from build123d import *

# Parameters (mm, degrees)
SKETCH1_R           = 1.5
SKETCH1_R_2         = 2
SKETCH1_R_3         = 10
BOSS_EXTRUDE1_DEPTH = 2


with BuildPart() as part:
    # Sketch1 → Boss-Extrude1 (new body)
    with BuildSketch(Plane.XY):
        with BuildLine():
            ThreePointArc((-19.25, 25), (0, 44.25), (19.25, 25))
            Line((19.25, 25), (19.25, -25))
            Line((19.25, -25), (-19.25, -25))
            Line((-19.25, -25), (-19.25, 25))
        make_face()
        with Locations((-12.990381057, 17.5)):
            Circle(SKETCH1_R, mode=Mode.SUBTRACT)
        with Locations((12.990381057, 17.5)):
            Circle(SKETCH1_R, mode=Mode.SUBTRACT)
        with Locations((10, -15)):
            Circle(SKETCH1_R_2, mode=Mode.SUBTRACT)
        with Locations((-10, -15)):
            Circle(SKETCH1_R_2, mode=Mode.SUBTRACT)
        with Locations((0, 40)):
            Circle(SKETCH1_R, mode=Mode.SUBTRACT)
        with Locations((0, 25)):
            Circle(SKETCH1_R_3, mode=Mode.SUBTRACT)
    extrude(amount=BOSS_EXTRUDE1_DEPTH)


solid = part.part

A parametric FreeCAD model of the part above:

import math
import FreeCAD as App
import Part
import Sketcher
from FreeCAD import Vector

doc = App.newDocument("Part")
body = doc.addObject("PartDesign::Body", "Body")

# Sketch on XY plane
sketch1 = body.newObject("Sketcher::SketchObject", "Sketch")
sketch1.AttachmentSupport = (doc.getObject("XY_Plane"), [""])
sketch1.MapMode = "FlatFace"
sketch1.addGeometry([
    Part.ArcOfCircle(Part.Circle(Vector(0, 25, 0), Vector(0, 0, 1), 19.25), math.radians(0), math.radians(180)),  # 0
    Part.LineSegment(Vector(-19.25, 25, 0), Vector(-19.25, -25, 0)),  # 1
    Part.LineSegment(Vector(-19.25, -25, 0), Vector(19.25, -25, 0)),  # 2
    Part.LineSegment(Vector(19.25, -25, 0), Vector(19.25, 25, 0)),  # 3
    Part.Circle(Vector(10, -15, 0), Vector(0, 0, 1), 2),  # 4
    Part.Circle(Vector(-10, -15, 0), Vector(0, 0, 1), 2),  # 5
    Part.Circle(Vector(12.990381, 17.5, 0), Vector(0, 0, 1), 1.5),  # 6
    Part.Circle(Vector(0, 25, 0), Vector(0, 0, 1), 10),  # 7
    Part.Circle(Vector(0, 40, 0), Vector(0, 0, 1), 1.5),  # 8
    Part.Circle(Vector(-12.990381, 17.5, 0), Vector(0, 0, 1), 1.5),  # 9
], False)
sketch1.addConstraint([
    Sketcher.Constraint("Tangent", 0, 2, 1, 1),
    Sketcher.Constraint("Coincident", 1, 2, 2, 1),
    Sketcher.Constraint("Coincident", 2, 2, 3, 1),
    Sketcher.Constraint("Tangent", 3, 2, 0, 1),
    Sketcher.Constraint("Vertical", 1),
    Sketcher.Constraint("Horizontal", 2),
    Sketcher.Constraint("Vertical", 3),
    Sketcher.Constraint("Coincident", 7, 3, 0, 3),
    Sketcher.Constraint("Equal", 4, 5),
    Sketcher.Constraint("Equal", 6, 8),
    Sketcher.Constraint("Equal", 8, 9),
    Sketcher.Constraint("Symmetric", 0, 2, 2, 2, -1, 1),
    Sketcher.Constraint("Symmetric", 4, 3, 5, 3, -2),
    Sketcher.Constraint("Symmetric", 6, 3, 9, 3, -2),
    Sketcher.Constraint("PointOnObject", 8, 3, -2),
    Sketcher.Constraint("Diameter", 4, 4.0),
    Sketcher.Constraint("Diameter", 6, 3.0),
    Sketcher.Constraint("Diameter", 7, 20.0),
    Sketcher.Constraint("DistanceY", 1, 2, 1, 1, 50.0),
    Sketcher.Constraint("Radius", 0, 19.25),
    Sketcher.Constraint("DistanceX", -1, 1, 4, 3, 10.0),
    Sketcher.Constraint("DistanceY", 4, 3, -1, 1, 15.0),
    Sketcher.Constraint("DistanceY", -1, 1, 8, 3, 40.0),
    Sketcher.Constraint("DistanceY", -1, 1, 6, 3, 17.5),
    Sketcher.Constraint("DistanceX", -1, 1, 6, 3, 12.990381),
])
pad1 = body.newObject("PartDesign::Pad", "Pad")
pad1.Profile = sketch1
pad1.Length = 2

doc.recompute()
